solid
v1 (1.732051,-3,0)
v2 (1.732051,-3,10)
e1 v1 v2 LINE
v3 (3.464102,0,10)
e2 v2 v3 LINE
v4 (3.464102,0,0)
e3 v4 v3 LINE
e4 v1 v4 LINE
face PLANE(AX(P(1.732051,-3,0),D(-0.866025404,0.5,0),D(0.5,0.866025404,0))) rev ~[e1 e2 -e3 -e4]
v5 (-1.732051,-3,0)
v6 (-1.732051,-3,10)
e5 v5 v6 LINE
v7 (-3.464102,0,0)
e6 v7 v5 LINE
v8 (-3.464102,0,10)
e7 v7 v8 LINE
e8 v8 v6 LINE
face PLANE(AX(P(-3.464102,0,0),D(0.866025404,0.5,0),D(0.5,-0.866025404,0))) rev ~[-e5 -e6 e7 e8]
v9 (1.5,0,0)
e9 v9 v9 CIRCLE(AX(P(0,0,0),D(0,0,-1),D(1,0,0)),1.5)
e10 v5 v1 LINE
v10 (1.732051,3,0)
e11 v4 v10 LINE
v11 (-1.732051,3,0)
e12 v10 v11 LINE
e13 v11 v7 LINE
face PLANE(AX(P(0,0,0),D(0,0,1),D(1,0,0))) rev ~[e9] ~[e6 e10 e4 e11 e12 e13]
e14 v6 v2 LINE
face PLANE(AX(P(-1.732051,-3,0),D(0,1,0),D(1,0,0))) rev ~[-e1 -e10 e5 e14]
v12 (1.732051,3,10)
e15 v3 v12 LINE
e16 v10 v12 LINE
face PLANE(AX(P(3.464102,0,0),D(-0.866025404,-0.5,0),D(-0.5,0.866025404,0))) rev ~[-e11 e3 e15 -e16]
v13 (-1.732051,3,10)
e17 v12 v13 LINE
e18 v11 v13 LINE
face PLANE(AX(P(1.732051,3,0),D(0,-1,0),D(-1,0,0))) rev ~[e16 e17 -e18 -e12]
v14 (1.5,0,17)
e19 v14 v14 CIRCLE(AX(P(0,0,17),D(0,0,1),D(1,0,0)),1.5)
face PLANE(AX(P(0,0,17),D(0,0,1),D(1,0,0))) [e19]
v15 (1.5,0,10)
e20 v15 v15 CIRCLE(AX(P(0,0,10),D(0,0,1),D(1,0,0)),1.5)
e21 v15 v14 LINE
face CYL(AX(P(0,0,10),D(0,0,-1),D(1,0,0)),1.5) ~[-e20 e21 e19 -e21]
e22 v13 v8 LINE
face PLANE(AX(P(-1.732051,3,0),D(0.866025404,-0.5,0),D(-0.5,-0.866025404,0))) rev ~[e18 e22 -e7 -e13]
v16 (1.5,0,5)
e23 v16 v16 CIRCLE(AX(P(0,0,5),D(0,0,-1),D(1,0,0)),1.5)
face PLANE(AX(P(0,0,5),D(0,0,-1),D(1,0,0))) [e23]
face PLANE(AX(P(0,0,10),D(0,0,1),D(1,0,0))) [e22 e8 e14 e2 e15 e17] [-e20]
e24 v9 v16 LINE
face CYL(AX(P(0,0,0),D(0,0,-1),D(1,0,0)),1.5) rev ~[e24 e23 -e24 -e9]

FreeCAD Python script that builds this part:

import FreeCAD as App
import Part
import Sketcher
from FreeCAD import Vector
Q = App.Units.Quantity

doc = App.newDocument("Part")
body = doc.addObject("PartDesign::Body", "Body")

# Sketch on XY plane
sketch1 = doc.addObject("Sketcher::SketchObject", "Sketch")
body.addObject(sketch1)
sketch1.AttachmentSupport = (doc.XY_Plane, [""])
sketch1.MapMode = "FlatFace"
sketch1.addGeometry([
    Part.LineSegment(Vector(1.7, 3, 0), Vector(-1.7, 3, 0)),  # 0
    Part.LineSegment(Vector(-1.7, 3, 0), Vector(-3.5, 0, 0)),  # 1
    Part.LineSegment(Vector(-3.5, 0, 0), Vector(-1.7, -3, 0)),  # 2
    Part.LineSegment(Vector(-1.7, -3, 0), Vector(1.7, -3, 0)),  # 3
    Part.LineSegment(Vector(1.7, -3, 0), Vector(3.5, 0, 0)),  # 4
    Part.LineSegment(Vector(3.5, 0, 0), Vector(1.7, 3, 0)),  # 5
], False)
sketch1.addConstraint([
    Sketcher.Constraint("Coincident", 0, 2, 1, 1),
    Sketcher.Constraint("Coincident", 1, 2, 2, 1),
    Sketcher.Constraint("Coincident", 2, 2, 3, 1),
    Sketcher.Constraint("Coincident", 3, 2, 4, 1),
    Sketcher.Constraint("Coincident", 4, 2, 5, 1),
    Sketcher.Constraint("Coincident", 5, 2, 0, 1),
    Sketcher.Constraint("Horizontal", 0),
    Sketcher.Constraint("Horizontal", 3),
    Sketcher.Constraint("Symmetric", 0, 2, 3, 2, -1, 1),
    Sketcher.Constraint("Symmetric", 1, 2, 4, 2, -1, 1),
    Sketcher.Constraint("PointOnObject", 1, 2, -1),
    Sketcher.Constraint("Parallel", 2, 5),
    Sketcher.Constraint("Vertical", 0, 2, 2, 2),
    Sketcher.Constraint("Angle", 1, Q("-120 deg")),
    Sketcher.Constraint("DistanceY", -1, 1, 0, 2, Q("3 mm")),
    Sketcher.Constraint("DistanceX", 0, 2, 0, 1, Q("3.464102 mm")),
])
pad1 = doc.addObject("PartDesign::Pad", "Pad")
body.addObject(pad1)
pad1.Profile = sketch1
pad1.Length = 10

# Sketch on XY plane
sketch2 = doc.addObject("Sketcher::SketchObject", "Sketch001")
body.addObject(sketch2)
sketch2.AttachmentSupport = (doc.XY_Plane, [""])
sketch2.MapMode = "FlatFace"
sketch2.AttachmentOffset = App.Placement(Vector(0, 0, 10), App.Rotation())
sketch2.addGeometry(Part.Circle(Vector(0, 0, 0), Vector(0, 0, 1), 1.5), False)
sketch2.addConstraint([
    Sketcher.Constraint("Coincident", 0, 3, -1, 1),
    Sketcher.Constraint("Diameter", 0, Q("3 mm")),
])
pad2 = doc.addObject("PartDesign::Pad", "Pad001")
body.addObject(pad2)
pad2.Profile = sketch2
pad2.Length = 7

# Sketch on XY plane
sketch3 = doc.addObject("Sketcher::SketchObject", "Sketch002")
body.addObject(sketch3)
sketch3.AttachmentSupport = (doc.XY_Plane, [""])
sketch3.MapMode = "FlatFace"
sketch3.addGeometry(Part.Circle(Vector(0, 0, 0), Vector(0, 0, 1), 1.5), False)
sketch3.addConstraint([
    Sketcher.Constraint("Coincident", 0, 3, -1, 1),
    Sketcher.Constraint("Diameter", 0, Q("3 mm")),
])
pocket1 = doc.addObject("PartDesign::Pocket", "Pocket")
body.addObject(pocket1)
pocket1.Profile = sketch3
pocket1.Length = 5
pocket1.Reversed = True

doc.recompute()
